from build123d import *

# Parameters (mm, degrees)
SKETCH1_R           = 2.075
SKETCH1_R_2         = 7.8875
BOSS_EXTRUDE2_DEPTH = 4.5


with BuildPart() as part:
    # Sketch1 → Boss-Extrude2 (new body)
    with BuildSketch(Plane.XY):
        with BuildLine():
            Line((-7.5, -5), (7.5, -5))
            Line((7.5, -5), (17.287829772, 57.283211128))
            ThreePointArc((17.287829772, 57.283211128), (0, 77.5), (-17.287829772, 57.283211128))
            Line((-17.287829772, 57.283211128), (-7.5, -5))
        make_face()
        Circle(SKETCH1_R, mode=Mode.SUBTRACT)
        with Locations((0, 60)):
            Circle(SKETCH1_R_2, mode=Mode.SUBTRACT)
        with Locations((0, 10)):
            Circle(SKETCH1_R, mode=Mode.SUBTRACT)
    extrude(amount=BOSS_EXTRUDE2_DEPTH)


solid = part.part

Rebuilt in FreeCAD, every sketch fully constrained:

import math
import FreeCAD as App
import Part
import Sketcher

V = App.Vector
Q = App.Units.Quantity

doc = App.newDocument("Part")
body = doc.addObject("PartDesign::Body", "Body")

sketch1 = doc.addObject("Sketcher::SketchObject", "Sketch")
body.addObject(sketch1)
sketch1.AttachmentSupport = (doc.XY_Plane, [""])
sketch1.MapMode = "FlatFace"
sketch1.addGeometry([
    Part.LineSegment(V(-7.5, -5, 0), V(7.5, -5, 0)),
    Part.LineSegment(V(7.5, -5, 0), V(17.28783, 57.283211, 0)),
    Part.ArcOfCircle(Part.Circle(V(0, 60, 0), V(0, 0, 1), 17.5), math.radians(-8.93101), math.radians(188.93101)),
    Part.LineSegment(V(-17.28783, 57.283211, 0), V(-7.5, -5, 0)),
    Part.Circle(V(0, 0, 0), V(0, 0, 1), 2.075),
    Part.Circle(V(0, 10, 0), V(0, 0, 1), 2.075),
    Part.Circle(V(0, 60, 0), V(0, 0, 1), 7.8875),
], False)
sketch1.addConstraint([
    Sketcher.Constraint("Coincident", 0, 2, 1, 1),
    Sketcher.Constraint("Tangent", 1, 2, 2, 1),
    Sketcher.Constraint("Tangent", 2, 2, 3, 1),
    Sketcher.Constraint("Coincident", 3, 2, 0, 1),
    Sketcher.Constraint("Horizontal", 0),
    Sketcher.Constraint("Coincident", 4, 3, -1, 1),
    Sketcher.Constraint("Coincident", 6, 3, 2, 3),
    Sketcher.Constraint("Equal", 4, 5),
    Sketcher.Constraint("Symmetric", 1, 2, 2, 2, -2),
    Sketcher.Constraint("PointOnObject", 5, 3, -2),
    Sketcher.Constraint("Radius", 2, Q("17.5 mm")),
    Sketcher.Constraint("Diameter", 4, Q("4.15 mm")),
    Sketcher.Constraint("DistanceX", 0, 1, 0, 2, Q("15 mm")),
    Sketcher.Constraint("Diameter", 6, Q("15.775 mm")),
    Sketcher.Constraint("DistanceY", -1, 1, 2, 3, Q("60 mm")),
    Sketcher.Constraint("DistanceY", -1, 1, 5, 3, Q("10 mm")),
    Sketcher.Constraint("DistanceY", 0, 2, -1, 1, Q("5 mm")),
])
pad1 = doc.addObject("PartDesign::Pad", "Pad")
body.addObject(pad1)
pad1.Profile = sketch1
pad1.Length = 4.5

doc.recompute()
